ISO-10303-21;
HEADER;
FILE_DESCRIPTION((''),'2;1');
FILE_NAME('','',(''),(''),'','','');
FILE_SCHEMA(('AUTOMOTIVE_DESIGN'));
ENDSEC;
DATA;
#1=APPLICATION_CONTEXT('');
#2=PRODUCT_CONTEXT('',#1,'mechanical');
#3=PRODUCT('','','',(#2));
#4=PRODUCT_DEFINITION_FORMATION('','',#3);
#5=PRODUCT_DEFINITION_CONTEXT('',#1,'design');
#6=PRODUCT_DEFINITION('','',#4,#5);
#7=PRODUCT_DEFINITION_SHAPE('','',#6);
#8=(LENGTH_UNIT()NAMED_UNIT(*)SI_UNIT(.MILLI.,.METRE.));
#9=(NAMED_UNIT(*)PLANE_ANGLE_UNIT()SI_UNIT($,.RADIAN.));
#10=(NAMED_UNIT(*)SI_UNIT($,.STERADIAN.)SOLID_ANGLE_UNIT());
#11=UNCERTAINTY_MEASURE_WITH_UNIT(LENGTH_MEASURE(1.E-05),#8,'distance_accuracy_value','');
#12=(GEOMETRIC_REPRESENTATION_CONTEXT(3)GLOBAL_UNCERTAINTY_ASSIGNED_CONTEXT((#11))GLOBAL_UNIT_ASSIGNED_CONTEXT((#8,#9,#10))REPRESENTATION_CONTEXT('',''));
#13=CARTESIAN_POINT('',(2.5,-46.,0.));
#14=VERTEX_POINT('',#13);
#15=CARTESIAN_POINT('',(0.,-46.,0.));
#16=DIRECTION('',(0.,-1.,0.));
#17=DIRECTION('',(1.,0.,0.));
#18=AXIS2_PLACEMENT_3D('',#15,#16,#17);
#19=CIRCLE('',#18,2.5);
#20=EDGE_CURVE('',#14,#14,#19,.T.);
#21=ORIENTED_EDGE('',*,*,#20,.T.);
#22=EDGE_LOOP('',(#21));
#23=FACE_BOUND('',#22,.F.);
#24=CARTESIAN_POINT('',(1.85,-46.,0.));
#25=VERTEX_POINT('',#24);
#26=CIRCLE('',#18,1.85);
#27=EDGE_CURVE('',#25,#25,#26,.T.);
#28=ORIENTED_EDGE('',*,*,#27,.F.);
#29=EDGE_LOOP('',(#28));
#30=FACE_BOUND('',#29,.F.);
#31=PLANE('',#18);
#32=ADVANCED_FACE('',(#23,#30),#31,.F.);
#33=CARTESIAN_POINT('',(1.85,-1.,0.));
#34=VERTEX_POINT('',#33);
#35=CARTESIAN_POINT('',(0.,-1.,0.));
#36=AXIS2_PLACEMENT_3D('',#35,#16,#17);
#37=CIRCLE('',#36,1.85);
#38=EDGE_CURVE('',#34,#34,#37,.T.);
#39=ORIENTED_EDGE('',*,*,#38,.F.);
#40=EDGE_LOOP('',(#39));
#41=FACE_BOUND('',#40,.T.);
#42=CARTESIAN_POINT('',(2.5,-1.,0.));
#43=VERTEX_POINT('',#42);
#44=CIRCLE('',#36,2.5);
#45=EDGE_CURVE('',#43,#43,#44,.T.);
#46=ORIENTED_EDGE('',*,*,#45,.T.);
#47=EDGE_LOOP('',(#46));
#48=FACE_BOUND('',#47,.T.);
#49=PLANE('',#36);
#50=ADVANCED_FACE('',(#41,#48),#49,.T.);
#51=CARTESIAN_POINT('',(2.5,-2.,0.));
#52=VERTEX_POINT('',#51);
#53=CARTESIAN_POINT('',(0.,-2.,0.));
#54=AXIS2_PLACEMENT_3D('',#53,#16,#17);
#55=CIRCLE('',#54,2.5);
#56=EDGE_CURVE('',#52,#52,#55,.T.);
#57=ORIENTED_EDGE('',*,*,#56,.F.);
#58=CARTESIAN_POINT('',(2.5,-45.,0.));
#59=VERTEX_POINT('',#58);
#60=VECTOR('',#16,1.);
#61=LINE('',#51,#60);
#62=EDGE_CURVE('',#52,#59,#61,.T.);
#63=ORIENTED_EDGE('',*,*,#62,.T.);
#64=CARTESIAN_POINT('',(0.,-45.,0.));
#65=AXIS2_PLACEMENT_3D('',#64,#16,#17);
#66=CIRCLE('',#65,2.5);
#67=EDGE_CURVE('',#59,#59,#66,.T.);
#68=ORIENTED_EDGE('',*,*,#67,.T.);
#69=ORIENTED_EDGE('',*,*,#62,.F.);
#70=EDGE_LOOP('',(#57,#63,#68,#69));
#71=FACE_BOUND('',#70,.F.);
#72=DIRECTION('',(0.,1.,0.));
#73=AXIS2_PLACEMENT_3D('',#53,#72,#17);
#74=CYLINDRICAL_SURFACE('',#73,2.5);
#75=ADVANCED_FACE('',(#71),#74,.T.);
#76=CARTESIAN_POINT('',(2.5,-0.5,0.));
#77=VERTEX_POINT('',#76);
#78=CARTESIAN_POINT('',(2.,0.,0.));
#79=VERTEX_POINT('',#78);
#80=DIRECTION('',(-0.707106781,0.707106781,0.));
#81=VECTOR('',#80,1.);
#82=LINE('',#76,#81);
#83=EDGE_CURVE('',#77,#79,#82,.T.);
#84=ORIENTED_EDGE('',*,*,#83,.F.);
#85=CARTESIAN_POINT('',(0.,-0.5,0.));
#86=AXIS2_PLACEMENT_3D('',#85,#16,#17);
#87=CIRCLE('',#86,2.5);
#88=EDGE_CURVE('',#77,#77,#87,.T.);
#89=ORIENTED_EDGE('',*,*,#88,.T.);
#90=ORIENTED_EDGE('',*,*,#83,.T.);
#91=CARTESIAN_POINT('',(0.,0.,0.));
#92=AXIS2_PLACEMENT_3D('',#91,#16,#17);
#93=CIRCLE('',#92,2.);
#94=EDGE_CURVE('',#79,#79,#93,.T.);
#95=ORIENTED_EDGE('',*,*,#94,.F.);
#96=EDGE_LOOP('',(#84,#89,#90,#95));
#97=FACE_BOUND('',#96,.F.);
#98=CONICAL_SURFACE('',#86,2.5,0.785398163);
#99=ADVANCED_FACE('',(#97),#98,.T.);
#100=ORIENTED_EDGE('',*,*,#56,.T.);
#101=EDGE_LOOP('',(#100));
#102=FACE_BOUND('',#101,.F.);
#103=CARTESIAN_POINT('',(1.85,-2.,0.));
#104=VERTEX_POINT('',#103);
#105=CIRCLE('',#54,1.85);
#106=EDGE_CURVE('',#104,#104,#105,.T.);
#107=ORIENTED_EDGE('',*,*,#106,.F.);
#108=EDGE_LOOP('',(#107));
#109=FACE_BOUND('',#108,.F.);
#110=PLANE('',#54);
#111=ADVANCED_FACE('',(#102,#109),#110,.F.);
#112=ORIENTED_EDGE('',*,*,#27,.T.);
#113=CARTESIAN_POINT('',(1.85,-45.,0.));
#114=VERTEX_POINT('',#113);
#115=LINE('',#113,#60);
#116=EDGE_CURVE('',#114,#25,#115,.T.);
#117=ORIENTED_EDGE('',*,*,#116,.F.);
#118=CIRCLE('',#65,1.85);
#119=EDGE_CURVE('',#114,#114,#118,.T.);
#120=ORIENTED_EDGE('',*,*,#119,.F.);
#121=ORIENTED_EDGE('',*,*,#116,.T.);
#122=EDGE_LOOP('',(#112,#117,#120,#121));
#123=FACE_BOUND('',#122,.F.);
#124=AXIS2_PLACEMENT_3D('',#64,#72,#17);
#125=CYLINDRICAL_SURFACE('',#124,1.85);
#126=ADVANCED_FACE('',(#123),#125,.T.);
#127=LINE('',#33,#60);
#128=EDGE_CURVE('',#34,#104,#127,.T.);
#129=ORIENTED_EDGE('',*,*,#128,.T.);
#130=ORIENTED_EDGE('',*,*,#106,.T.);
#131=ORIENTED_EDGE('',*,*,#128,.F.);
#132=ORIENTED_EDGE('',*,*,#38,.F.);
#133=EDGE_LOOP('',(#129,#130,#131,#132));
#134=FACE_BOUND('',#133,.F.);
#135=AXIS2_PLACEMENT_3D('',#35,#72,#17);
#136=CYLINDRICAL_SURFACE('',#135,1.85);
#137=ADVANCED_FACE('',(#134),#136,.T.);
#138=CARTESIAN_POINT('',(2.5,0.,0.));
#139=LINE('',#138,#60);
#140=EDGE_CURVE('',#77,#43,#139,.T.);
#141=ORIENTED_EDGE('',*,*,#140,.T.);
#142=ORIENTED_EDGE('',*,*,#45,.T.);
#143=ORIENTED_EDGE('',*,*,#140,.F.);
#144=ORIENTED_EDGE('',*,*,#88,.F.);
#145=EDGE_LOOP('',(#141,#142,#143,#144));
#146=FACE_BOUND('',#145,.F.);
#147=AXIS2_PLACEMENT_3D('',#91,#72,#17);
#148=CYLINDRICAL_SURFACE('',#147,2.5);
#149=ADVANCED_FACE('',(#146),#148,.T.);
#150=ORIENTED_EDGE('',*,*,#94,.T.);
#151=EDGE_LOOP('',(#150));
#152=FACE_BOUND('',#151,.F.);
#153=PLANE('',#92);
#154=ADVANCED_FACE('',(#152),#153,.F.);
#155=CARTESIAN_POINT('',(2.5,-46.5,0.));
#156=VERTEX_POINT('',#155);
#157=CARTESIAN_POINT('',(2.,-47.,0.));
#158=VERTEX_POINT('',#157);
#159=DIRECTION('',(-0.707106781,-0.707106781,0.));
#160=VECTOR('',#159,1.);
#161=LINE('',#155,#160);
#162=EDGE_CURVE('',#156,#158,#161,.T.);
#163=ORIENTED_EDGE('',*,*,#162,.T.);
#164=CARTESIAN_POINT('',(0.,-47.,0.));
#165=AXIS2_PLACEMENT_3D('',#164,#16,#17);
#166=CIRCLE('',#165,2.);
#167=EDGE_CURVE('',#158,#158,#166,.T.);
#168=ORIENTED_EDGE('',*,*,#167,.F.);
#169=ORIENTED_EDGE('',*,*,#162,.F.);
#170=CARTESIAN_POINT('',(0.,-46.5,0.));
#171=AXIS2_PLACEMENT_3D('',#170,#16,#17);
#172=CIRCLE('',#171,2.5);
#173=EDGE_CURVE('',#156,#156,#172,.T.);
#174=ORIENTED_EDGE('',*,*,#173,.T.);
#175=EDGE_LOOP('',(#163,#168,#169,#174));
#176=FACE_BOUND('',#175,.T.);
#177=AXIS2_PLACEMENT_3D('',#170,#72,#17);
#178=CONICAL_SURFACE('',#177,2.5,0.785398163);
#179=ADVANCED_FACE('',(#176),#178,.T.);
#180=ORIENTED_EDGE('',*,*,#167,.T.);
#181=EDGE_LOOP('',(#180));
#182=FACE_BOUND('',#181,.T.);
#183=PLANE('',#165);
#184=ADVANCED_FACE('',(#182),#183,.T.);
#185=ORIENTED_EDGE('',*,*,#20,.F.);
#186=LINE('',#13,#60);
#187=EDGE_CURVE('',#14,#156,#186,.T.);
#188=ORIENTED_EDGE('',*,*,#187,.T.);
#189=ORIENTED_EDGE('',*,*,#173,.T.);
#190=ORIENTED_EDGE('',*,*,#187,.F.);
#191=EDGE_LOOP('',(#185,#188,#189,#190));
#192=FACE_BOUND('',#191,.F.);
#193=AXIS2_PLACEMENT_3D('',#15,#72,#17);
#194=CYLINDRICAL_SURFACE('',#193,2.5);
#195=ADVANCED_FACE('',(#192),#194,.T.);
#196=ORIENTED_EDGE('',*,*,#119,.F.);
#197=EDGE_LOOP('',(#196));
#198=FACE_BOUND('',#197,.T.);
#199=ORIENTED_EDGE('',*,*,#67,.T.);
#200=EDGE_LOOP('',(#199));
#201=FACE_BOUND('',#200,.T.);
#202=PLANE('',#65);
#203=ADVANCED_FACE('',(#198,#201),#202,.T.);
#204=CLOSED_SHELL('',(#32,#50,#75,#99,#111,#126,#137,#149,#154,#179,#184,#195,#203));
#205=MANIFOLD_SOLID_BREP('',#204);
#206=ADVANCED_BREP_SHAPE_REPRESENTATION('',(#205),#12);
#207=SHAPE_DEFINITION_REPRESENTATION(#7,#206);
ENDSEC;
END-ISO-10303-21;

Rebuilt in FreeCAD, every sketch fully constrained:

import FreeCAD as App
import Part
import Sketcher
from FreeCAD import Vector
Q = App.Units.Quantity


def edges_at(feature, points):
    """Names of the edges that pass closest to the given points."""
    edges = feature.Shape.Edges
    near = lambda p: min(range(len(edges)), key=lambda i: edges[i].distToShape(Part.Vertex(*p))[0])
    return sorted({f"Edge{near(p) + 1}" for p in points})

doc = App.newDocument("Part")
body = doc.addObject("PartDesign::Body", "Body")

sketch1 = body.newObject("Sketcher::SketchObject", "Sketch")
sketch1.AttachmentSupport = (doc.getObject("XZ_Plane"), [""])
sketch1.MapMode = "FlatFace"
sketch1.addGeometry(Part.Circle(Vector(0, 0, 0), Vector(0, 0, 1), 2.5), False)
sketch1.addConstraint([
    Sketcher.Constraint("Coincident", 0, 3, -1, 1),
    Sketcher.Constraint("Diameter", 0, Q("5 mm")),
])
pad1 = body.newObject("PartDesign::Pad", "Pad")
pad1.Profile = sketch1
pad1.Length = 1

sketch2 = body.newObject("Sketcher::SketchObject", "Sketch001")
sketch2.AttachmentSupport = (doc.getObject("XZ_Plane"), [""])
sketch2.MapMode = "FlatFace"
sketch2.AttachmentOffset = App.Placement(Vector(0, 0, 1), App.Rotation())
sketch2.addGeometry(Part.Circle(Vector(0, 0, 0), Vector(0, 0, 1), 1.9), False)
sketch2.addConstraint([
    Sketcher.Constraint("Coincident", 0, 3, -1, 1),
    Sketcher.Constraint("Diameter", 0, Q("3.7 mm")),
])
pad2 = body.newObject("PartDesign::Pad", "Pad001")
pad2.Profile = sketch2
pad2.Length = 1

sketch3 = body.newObject("Sketcher::SketchObject", "Sketch002")
sketch3.AttachmentSupport = (doc.getObject("XZ_Plane"), [""])
sketch3.MapMode = "FlatFace"
sketch3.AttachmentOffset = App.Placement(Vector(0, 0, 2), App.Rotation())
sketch3.addGeometry(Part.Circle(Vector(0, 0, 0), Vector(0, 0, 1), 2.5), False)
sketch3.addConstraint([
    Sketcher.Constraint("Coincident", 0, 3, -1, 1),
    Sketcher.Constraint("Diameter", 0, Q("5 mm")),
])
pad3 = body.newObject("PartDesign::Pad", "Pad002")
pad3.Profile = sketch3
pad3.Length = 43

sketch4 = body.newObject("Sketcher::SketchObject", "Sketch003")
sketch4.AttachmentSupport = (doc.getObject("XZ_Plane"), [""])
sketch4.MapMode = "FlatFace"
sketch4.AttachmentOffset = App.Placement(Vector(0, 0, 45), App.Rotation())
sketch4.addGeometry(Part.Circle(Vector(0, 0, 0), Vector(0, 0, 1), 1.9), False)
sketch4.addConstraint([
    Sketcher.Constraint("Coincident", 0, 3, -1, 1),
    Sketcher.Constraint("Diameter", 0, Q("3.7 mm")),
])
pad4 = body.newObject("PartDesign::Pad", "Pad003")
pad4.Profile = sketch4
pad4.Length = 1

sketch5 = body.newObject("Sketcher::SketchObject", "Sketch004")
sketch5.AttachmentSupport = (doc.getObject("XZ_Plane"), [""])
sketch5.MapMode = "FlatFace"
sketch5.AttachmentOffset = App.Placement(Vector(0, 0, 46), App.Rotation())
sketch5.addGeometry(Part.Circle(Vector(0, 0, 0), Vector(0, 0, 1), 2.5), False)
sketch5.addConstraint([
    Sketcher.Constraint("Coincident", 0, 3, -1, 1),
    Sketcher.Constraint("Diameter", 0, Q("5 mm")),
])
pad5 = body.newObject("PartDesign::Pad", "Pad004")
pad5.Profile = sketch5
pad5.Length = 1
doc.recompute()

chamfer = body.newObject("PartDesign::Chamfer", "Chamfer")
chamfer.Base = (pad5, edges_at(pad5, [(-2.5, -47, 0), (-2.5, 0, 0)]))
chamfer.Size = 0.5

doc.recompute()
